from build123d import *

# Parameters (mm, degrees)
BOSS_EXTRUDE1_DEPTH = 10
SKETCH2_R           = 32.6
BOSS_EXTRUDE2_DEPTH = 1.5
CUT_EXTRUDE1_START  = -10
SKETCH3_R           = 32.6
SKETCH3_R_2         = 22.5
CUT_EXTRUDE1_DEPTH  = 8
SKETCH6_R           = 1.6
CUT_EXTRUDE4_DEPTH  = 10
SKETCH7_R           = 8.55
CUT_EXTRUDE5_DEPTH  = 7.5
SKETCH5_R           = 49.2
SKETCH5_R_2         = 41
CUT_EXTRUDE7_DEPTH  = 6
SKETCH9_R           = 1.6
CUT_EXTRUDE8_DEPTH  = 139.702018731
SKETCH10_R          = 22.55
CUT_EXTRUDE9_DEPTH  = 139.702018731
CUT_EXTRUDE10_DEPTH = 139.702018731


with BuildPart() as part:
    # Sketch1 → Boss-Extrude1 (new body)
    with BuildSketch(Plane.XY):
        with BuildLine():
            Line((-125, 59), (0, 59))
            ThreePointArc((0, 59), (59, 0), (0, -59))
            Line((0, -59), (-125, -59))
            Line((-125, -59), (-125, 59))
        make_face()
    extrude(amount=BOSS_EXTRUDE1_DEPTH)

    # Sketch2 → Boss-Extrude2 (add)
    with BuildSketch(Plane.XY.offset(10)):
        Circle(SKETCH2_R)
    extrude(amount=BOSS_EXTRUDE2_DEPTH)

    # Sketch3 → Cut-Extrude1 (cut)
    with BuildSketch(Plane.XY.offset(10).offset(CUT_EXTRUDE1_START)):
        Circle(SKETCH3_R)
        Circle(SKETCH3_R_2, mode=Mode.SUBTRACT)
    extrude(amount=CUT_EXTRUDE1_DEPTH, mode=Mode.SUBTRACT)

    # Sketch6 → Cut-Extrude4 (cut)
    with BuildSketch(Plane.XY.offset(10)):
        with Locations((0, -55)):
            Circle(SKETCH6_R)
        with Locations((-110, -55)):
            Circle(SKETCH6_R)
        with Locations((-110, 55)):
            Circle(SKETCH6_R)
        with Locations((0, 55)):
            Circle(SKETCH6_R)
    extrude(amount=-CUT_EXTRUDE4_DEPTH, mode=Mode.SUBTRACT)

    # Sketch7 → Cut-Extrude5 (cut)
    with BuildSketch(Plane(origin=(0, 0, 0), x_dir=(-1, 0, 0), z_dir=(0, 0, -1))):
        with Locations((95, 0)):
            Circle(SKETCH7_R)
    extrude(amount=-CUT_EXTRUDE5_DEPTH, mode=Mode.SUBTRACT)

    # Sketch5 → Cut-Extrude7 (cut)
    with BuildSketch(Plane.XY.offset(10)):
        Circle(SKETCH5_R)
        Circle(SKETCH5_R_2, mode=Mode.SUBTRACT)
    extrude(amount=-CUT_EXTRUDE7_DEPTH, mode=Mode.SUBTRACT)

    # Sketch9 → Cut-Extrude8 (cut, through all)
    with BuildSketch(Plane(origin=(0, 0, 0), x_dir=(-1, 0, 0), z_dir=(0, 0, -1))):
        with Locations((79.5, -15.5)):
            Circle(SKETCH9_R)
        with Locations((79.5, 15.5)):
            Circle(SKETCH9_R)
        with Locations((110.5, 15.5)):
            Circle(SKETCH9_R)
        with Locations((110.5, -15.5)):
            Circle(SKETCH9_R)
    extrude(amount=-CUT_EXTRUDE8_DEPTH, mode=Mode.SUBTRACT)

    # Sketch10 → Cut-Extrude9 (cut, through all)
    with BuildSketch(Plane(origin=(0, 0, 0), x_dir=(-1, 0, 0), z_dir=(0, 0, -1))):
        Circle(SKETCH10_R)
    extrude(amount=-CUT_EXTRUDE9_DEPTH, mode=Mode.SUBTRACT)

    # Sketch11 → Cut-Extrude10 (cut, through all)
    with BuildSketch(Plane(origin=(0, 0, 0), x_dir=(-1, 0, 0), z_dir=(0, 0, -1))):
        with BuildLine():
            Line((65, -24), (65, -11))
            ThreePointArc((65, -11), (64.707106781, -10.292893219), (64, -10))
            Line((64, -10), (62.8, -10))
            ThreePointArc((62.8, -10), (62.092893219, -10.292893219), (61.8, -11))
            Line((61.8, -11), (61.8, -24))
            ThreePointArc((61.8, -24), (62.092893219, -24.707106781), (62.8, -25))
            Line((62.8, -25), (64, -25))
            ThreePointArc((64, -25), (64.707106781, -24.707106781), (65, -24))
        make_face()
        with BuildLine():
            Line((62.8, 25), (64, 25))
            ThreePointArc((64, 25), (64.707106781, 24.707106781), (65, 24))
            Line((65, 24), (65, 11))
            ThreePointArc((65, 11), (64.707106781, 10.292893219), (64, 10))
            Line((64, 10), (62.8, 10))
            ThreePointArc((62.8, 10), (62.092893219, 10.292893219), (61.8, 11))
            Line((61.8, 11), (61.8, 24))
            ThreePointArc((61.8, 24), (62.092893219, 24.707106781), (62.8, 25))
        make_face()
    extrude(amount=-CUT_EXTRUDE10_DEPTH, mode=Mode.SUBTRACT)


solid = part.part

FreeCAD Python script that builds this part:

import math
import FreeCAD as App
import Part
import Sketcher

doc = App.newDocument("Part")
body = doc.addObject("PartDesign::Body", "Body")

# Sketch on XY plane
sketch1 = body.newObject("Sketcher::SketchObject", "Sketch")
sketch1.AttachmentSupport = (doc.getObject("XY_Plane"), [""])
sketch1.MapMode = "FlatFace"
sketch1.addGeometry([
    Part.LineSegment(App.Vector(0, 59, 0), App.Vector(-125, 59, 0)),
    Part.LineSegment(App.Vector(-125, 59, 0), App.Vector(-125, -59, 0)),
    Part.LineSegment(App.Vector(-125, -59, 0), App.Vector(0, -59, 0)),
    Part.ArcOfCircle(Part.Circle(App.Vector(0, 0, 0), App.Vector(0, 0, 1), 59), math.radians(-90), math.radians(90)),
], False)
sketch1.addConstraint([
    Sketcher.Constraint("Coincident", 0, 2, 1, 1),
    Sketcher.Constraint("Coincident", 1, 2, 2, 1),
    Sketcher.Constraint("Tangent", 2, 2, 3, 1),
    Sketcher.Constraint("Tangent", 3, 2, 0, 1),
    Sketcher.Constraint("Horizontal", 0),
    Sketcher.Constraint("Vertical", 1),
    Sketcher.Constraint("Horizontal", 2),
    Sketcher.Constraint("Coincident", 3, 3, -1, 1),
    Sketcher.Constraint("Radius", 3, 59.0),
    Sketcher.Constraint("DistanceX", 0, 2, 0, 1, 125.0),
])
pad1 = body.newObject("PartDesign::Pad", "Pad")
pad1.Profile = sketch1
pad1.Length = 10

# Sketch on XY plane
sketch2 = body.newObject("Sketcher::SketchObject", "Sketch001")
sketch2.AttachmentSupport = (doc.getObject("XY_Plane"), [""])
sketch2.MapMode = "FlatFace"
sketch2.AttachmentOffset = App.Placement(App.Vector(0, 0, 10), App.Rotation())
sketch2.addGeometry(Part.Circle(App.Vector(0, 0, 0), App.Vector(0, 0, 1), 33), False)
sketch2.addConstraint([
    Sketcher.Constraint("Coincident", 0, 3, -1, 1),
    Sketcher.Constraint("Diameter", 0, 65.2),
])
pad2 = body.newObject("PartDesign::Pad", "Pad001")
pad2.Profile = sketch2
pad2.Length = 1.5

# Sketch on XY plane
sketch3 = body.newObject("Sketcher::SketchObject", "Sketch002")
sketch3.AttachmentSupport = (doc.getObject("XY_Plane"), [""])
sketch3.MapMode = "FlatFace"
sketch3.addGeometry([
    Part.Circle(App.Vector(0, 0, 0), App.Vector(0, 0, 1), 33),
    Part.Circle(App.Vector(0, 0, 0), App.Vector(0, 0, 1), 22),
], False)
sketch3.addConstraint([
    Sketcher.Constraint("Coincident", 0, 3, -1, 1),
    Sketcher.Constraint("Coincident", 1, 3, -1, 1),
    Sketcher.Constraint("Diameter", 1, 45.0),
    Sketcher.Constraint("Diameter", 0, 65.2),
])
pocket1 = body.newObject("PartDesign::Pocket", "Pocket")
pocket1.Profile = sketch3
pocket1.Length = 8
pocket1.Reversed = True

# Sketch on XY plane
sketch4 = body.newObject("Sketcher::SketchObject", "Sketch003")
sketch4.AttachmentSupport = (doc.getObject("XY_Plane"), [""])
sketch4.MapMode = "FlatFace"
sketch4.AttachmentOffset = App.Placement(App.Vector(0, 0, 10), App.Rotation())
sketch4.addGeometry([
    Part.Circle(App.Vector(0, -55, 0), App.Vector(0, 0, 1), 1.6),
    Part.Circle(App.Vector(-110, -55, 0), App.Vector(0, 0, 1), 1.6),
    Part.Circle(App.Vector(-110, 55, 0), App.Vector(0, 0, 1), 1.6),
    Part.Circle(App.Vector(0, 55, 0), App.Vector(0, 0, 1), 1.6),
], False)
sketch4.addConstraint([
    Sketcher.Constraint("Equal", 0, 1),
    Sketcher.Constraint("Equal", 1, 2),
    Sketcher.Constraint("Equal", 2, 3),
    Sketcher.Constraint("Symmetric", 0, 3, 3, 3, -1, 1),
    Sketcher.Constraint("Symmetric", 1, 3, 2, 3, -1),
    Sketcher.Constraint("PointOnObject", 0, 3, -2),
    Sketcher.Constraint("Horizontal", 0, 3, 1, 3),
    Sketcher.Constraint("Diameter", 0, 3.2),
    Sketcher.Constraint("DistanceY", 0, 3, -1, 1, 55.0),
    Sketcher.Constraint("DistanceX", 1, 3, -1, 1, 110.0),
])
pocket2 = body.newObject("PartDesign::Pocket", "Pocket001")
pocket2.Profile = sketch4
pocket2.Length = 10

# Sketch on XY plane
sketch5 = body.newObject("Sketcher::SketchObject", "Sketch004")
sketch5.AttachmentSupport = (doc.getObject("XY_Plane"), [""])
sketch5.MapMode = "FlatFace"
sketch5.addGeometry(Part.Circle(App.Vector(-95, 0, 0), App.Vector(0, 0, 1), 9), False)
sketch5.addConstraint([
    Sketcher.Constraint("PointOnObject", 0, 3, -1),
    Sketcher.Constraint("Diameter", 0, 17.1),
    Sketcher.Constraint("DistanceX", 0, 3, -1, 1, 95.0),
])
pocket3 = body.newObject("PartDesign::Pocket", "Pocket002")
pocket3.Profile = sketch5
pocket3.Length = 7.5
pocket3.Reversed = True

# Sketch on XY plane
sketch6 = body.newObject("Sketcher::SketchObject", "Sketch005")
sketch6.AttachmentSupport = (doc.getObject("XY_Plane"), [""])
sketch6.MapMode = "FlatFace"
sketch6.AttachmentOffset = App.Placement(App.Vector(0, 0, 10), App.Rotation())
sketch6.addGeometry([
    Part.Circle(App.Vector(0, 0, 0), App.Vector(0, 0, 1), 49),
    Part.Circle(App.Vector(0, 0, 0), App.Vector(0, 0, 1), 41),
], False)
sketch6.addConstraint([
    Sketcher.Constraint("Coincident", 0, 3, -1, 1),
    Sketcher.Constraint("Coincident", 1, 3, -1, 1),
    Sketcher.Constraint("Diameter", 1, 82.0),
    Sketcher.Constraint("Diameter", 0, 98.4),
])
pocket4 = body.newObject("PartDesign::Pocket", "Pocket003")
pocket4.Profile = sketch6
pocket4.Length = 6

# Sketch on XY plane
sketch7 = body.newObject("Sketcher::SketchObject", "Sketch006")
sketch7.AttachmentSupport = (doc.getObject("XY_Plane"), [""])
sketch7.MapMode = "FlatFace"
sketch7.addGeometry([
    Part.Circle(App.Vector(-79.5, -15.5, 0), App.Vector(0, 0, 1), 1.6),
    Part.Circle(App.Vector(-79.5, 15.5, 0), App.Vector(0, 0, 1), 1.6),
    Part.Circle(App.Vector(-110.5, 15.5, 0), App.Vector(0, 0, 1), 1.6),
    Part.Circle(App.Vector(-110.5, -15.5, 0), App.Vector(0, 0, 1), 1.6),
], False)
sketch7.addConstraint([
    Sketcher.Constraint("Equal", 0, 1),
    Sketcher.Constraint("Equal", 1, 2),
    Sketcher.Constraint("Equal", 2, 3),
    Sketcher.Constraint("Symmetric", 0, 3, 1, 3, -1),
    Sketcher.Constraint("Symmetric", 2, 3, 3, 3, -1),
    Sketcher.Constraint("Horizontal", 1, 3, 2, 3),
    Sketcher.Constraint("Diameter", 0, 3.2),
    Sketcher.Constraint("DistanceY", 0, 3, 1, 3, 31.0),
    Sketcher.Constraint("DistanceX", 2, 3, 1, 3, 31.0),
    Sketcher.Constraint("DistanceX", 0, 3, -1, 1, 79.5),
])
pocket5 = body.newObject("PartDesign::Pocket", "Pocket004")
pocket5.Profile = sketch7
pocket5.Type = "ThroughAll"
pocket5.Reversed = True

# Sketch on XY plane
sketch8 = body.newObject("Sketcher::SketchObject", "Sketch007")
sketch8.AttachmentSupport = (doc.getObject("XY_Plane"), [""])
sketch8.MapMode = "FlatFace"
sketch8.addGeometry(Part.Circle(App.Vector(0, 0, 0), App.Vector(0, 0, 1), 23), False)
sketch8.addConstraint([
    Sketcher.Constraint("Coincident", 0, 3, -1, 1),
    Sketcher.Constraint("Diameter", 0, 45.1),
])
pocket6 = body.newObject("PartDesign::Pocket", "Pocket005")
pocket6.Profile = sketch8
pocket6.Type = "ThroughAll"
pocket6.Reversed = True

# Sketch on XY plane
sketch9 = body.newObject("Sketcher::SketchObject", "Sketch008")
sketch9.AttachmentSupport = (doc.getObject("XY_Plane"), [""])
sketch9.MapMode = "FlatFace"
sketch9.addGeometry([
    Part.LineSegment(App.Vector(-65, -24, 0), App.Vector(-65, -11, 0)),  # 0
    Part.ArcOfCircle(Part.Circle(App.Vector(-64, -11, 0), App.Vector(0, 0, 1), 1), math.radians(90), math.radians(180)),  # 1
    Part.LineSegment(App.Vector(-64, -10, 0), App.Vector(-62.8, -10, 0)),  # 2
    Part.ArcOfCircle(Part.Circle(App.Vector(-62.8, -11, 0), App.Vector(0, 0, 1), 1), math.radians(0), math.radians(90)),  # 3
    Part.LineSegment(App.Vector(-61.8, -11, 0), App.Vector(-61.8, -24, 0)),  # 4
    Part.ArcOfCircle(Part.Circle(App.Vector(-62.8, -24, 0), App.Vector(0, 0, 1), 1), math.radians(-90), math.radians(0)),  # 5
    Part.LineSegment(App.Vector(-62.8, -25, 0), App.Vector(-64, -25, 0)),  # 6
    Part.ArcOfCircle(Part.Circle(App.Vector(-64, -24, 0), App.Vector(0, 0, 1), 1), math.radians(-180), math.radians(-90)),  # 7
    Part.LineSegment(App.Vector(-64, 25, 0), App.Vector(-62.8, 25, 0)),  # 8
    Part.ArcOfCircle(Part.Circle(App.Vector(-62.8, 24, 0), App.Vector(0, 0, 1), 1), math.radians(0), math.radians(90)),  # 9
    Part.LineSegment(App.Vector(-61.8, 24, 0), App.Vector(-61.8, 11, 0)),  # 10
    Part.ArcOfCircle(Part.Circle(App.Vector(-62.8, 11, 0), App.Vector(0, 0, 1), 1), math.radians(-90), math.radians(0)),  # 11
    Part.LineSegment(App.Vector(-62.8, 10, 0), App.Vector(-64, 10, 0)),  # 12
    Part.ArcOfCircle(Part.Circle(App.Vector(-64, 11, 0), App.Vector(0, 0, 1), 1), math.radians(-180), math.radians(-90)),  # 13
    Part.LineSegment(App.Vector(-65, 11, 0), App.Vector(-65, 24, 0)),  # 14
    Part.ArcOfCircle(Part.Circle(App.Vector(-64, 24, 0), App.Vector(0, 0, 1), 1), math.radians(90), math.radians(180)),  # 15
], False)
sketch9.addConstraint([
    Sketcher.Constraint("Tangent", 0, 2, 1, 2),
    Sketcher.Constraint("Tangent", 1, 1, 2, 1),
    Sketcher.Constraint("Tangent", 2, 2, 3, 2),
    Sketcher.Constraint("Tangent", 3, 1, 4, 1),
    Sketcher.Constraint("Tangent", 4, 2, 5, 2),
    Sketcher.Constraint("Tangent", 5, 1, 6, 1),
    Sketcher.Constraint("Tangent", 6, 2, 7, 2),
    Sketcher.Constraint("Tangent", 7, 1, 0, 1),
    Sketcher.Constraint("Tangent", 8, 2, 9, 2),
    Sketcher.Constraint("Tangent", 9, 1, 10, 1),
    Sketcher.Constraint("Tangent", 10, 2, 11, 2),
    Sketcher.Constraint("Tangent", 11, 1, 12, 1),
    Sketcher.Constraint("Tangent", 12, 2, 13, 2),
    Sketcher.Constraint("Tangent", 13, 1, 14, 1),
    Sketcher.Constraint("Tangent", 14, 2, 15, 2),
    Sketcher.Constraint("Tangent", 15, 1, 8, 1),
    Sketcher.Constraint("Vertical", 0),
    Sketcher.Constraint("Horizontal", 2),
    Sketcher.Constraint("Vertical", 4),
    Sketcher.Constraint("Horizontal", 6),
    Sketcher.Constraint("Horizontal", 8),
    Sketcher.Constraint("Vertical", 10),
    Sketcher.Constraint("Horizontal", 12),
    Sketcher.Constraint("Vertical", 14),
    Sketcher.Constraint("Equal", 1, 3),
    Sketcher.Constraint("Equal", 3, 5),
    Sketcher.Constraint("Equal", 5, 7),
    Sketcher.Constraint("Equal", 7, 9),
    Sketcher.Constraint("Equal", 9, 11),
    Sketcher.Constraint("Equal", 11, 13),
    Sketcher.Constraint("Equal", 13, 15),
    Sketcher.Constraint("Symmetric", 5, 3, 9, 3, -1),
    Sketcher.Constraint("Symmetric", 1, 3, 13, 3, -1),
    Sketcher.Constraint("Radius", 1, 1.0),
    Sketcher.Constraint("DistanceY", 0, 1, 0, 2, 13.0),
    Sketcher.Constraint("DistanceX", 2, 1, 2, 2, 1.2),
    Sketcher.Constraint("DistanceX", 1, 3, -1, 1, 64.0),
    Sketcher.Constraint("DistanceY", 1, 3, -1, 1, 11.0),
])
pocket7 = body.newObject("PartDesign::Pocket", "Pocket006")
pocket7.Profile = sketch9
pocket7.Type = "ThroughAll"
pocket7.Reversed = True

doc.recompute()
